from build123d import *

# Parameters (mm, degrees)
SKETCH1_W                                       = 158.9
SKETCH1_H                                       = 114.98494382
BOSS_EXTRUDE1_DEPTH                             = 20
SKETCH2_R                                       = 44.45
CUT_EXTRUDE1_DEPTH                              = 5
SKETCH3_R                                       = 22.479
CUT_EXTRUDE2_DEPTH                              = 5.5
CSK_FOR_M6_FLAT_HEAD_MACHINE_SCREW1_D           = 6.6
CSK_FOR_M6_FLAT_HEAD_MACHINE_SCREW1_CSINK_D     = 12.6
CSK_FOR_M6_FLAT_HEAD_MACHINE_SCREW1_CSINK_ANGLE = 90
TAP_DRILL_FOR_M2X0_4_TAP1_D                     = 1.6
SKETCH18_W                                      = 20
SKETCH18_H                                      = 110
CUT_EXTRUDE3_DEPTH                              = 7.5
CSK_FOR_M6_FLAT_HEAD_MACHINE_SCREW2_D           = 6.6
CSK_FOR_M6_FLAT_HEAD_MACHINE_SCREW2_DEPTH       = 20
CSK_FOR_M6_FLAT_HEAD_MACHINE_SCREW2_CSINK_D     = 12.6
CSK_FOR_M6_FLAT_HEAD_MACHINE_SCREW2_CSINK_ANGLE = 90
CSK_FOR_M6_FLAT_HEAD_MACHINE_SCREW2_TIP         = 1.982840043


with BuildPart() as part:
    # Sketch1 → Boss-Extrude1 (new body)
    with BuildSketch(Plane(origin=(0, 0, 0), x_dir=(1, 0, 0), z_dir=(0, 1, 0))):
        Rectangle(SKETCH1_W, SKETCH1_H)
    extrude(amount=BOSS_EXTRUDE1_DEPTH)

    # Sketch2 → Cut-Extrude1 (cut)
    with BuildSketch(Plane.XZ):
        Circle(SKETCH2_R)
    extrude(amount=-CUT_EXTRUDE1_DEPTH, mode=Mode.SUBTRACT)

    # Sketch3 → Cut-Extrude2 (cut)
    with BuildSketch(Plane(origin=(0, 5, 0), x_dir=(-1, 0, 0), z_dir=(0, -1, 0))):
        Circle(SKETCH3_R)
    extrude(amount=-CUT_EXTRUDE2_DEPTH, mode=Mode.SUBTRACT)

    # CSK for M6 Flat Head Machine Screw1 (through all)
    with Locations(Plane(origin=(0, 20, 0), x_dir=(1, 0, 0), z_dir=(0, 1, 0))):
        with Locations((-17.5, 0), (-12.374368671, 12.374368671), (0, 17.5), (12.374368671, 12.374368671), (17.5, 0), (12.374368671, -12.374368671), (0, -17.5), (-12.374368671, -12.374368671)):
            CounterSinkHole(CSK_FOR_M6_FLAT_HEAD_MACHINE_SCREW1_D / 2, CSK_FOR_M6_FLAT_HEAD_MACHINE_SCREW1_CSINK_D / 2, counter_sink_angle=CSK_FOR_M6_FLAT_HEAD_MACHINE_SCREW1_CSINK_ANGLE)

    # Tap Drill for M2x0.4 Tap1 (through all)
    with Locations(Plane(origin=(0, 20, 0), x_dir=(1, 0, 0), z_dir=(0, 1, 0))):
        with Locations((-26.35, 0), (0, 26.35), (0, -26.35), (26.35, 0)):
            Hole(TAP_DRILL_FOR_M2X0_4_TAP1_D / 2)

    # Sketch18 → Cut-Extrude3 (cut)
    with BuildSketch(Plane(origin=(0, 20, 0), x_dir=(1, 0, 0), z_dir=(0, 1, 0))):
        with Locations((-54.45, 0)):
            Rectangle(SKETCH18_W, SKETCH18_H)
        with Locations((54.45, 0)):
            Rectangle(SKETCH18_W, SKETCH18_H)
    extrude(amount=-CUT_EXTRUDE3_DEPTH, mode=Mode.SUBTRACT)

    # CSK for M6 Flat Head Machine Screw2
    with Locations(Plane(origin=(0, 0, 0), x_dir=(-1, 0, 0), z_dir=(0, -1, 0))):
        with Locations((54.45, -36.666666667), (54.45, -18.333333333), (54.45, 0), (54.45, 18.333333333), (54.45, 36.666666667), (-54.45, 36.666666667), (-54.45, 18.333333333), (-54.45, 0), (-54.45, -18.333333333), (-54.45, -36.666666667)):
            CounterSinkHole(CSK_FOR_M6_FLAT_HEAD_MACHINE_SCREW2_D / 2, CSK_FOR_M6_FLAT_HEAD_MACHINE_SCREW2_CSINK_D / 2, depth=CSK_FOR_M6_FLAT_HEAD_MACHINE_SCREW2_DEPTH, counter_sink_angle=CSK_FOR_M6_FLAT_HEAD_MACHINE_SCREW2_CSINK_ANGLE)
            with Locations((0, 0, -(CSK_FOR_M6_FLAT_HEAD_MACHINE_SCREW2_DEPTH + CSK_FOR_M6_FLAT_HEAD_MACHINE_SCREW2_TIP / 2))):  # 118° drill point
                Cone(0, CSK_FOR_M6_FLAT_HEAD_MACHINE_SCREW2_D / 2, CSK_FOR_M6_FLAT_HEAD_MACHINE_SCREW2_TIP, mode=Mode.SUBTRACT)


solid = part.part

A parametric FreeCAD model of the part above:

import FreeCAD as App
import Part
import Sketcher
from FreeCAD import Vector
Q = App.Units.Quantity


def add_polygon(sketch, points):
    """Adds a closed chain of lines whose ends are joined by coincident constraints."""
    first, n = sketch.GeometryCount, len(points)
    for a, b in zip(points, points[1:] + points[:1]):
        sketch.addGeometry(Part.LineSegment(App.Vector(*a, 0), App.Vector(*b, 0)), False)
    for i in range(n):
        sketch.addConstraint(Sketcher.Constraint("Coincident", first + i, 2, first + (i + 1) % n, 1))

doc = App.newDocument("Part")
body = doc.addObject("PartDesign::Body", "Body")

# Sketch on XZ plane
sketch1 = body.newObject("Sketcher::SketchObject", "Sketch")
sketch1.AttachmentSupport = (doc.getObject("XZ_Plane"), [""])
sketch1.MapMode = "FlatFace"
add_polygon(sketch1, [(-79, -57), (-79, 57), (79, 57), (79, -57)])  # lines 0-3
sketch1.addConstraint([
    Sketcher.Constraint("Vertical", 0),
    Sketcher.Constraint("Horizontal", 1),
    Sketcher.Constraint("Vertical", 2),
    Sketcher.Constraint("Horizontal", 3),
    Sketcher.Constraint("Symmetric", 0, 2, 2, 2, -1, 1),
    Sketcher.Constraint("DistanceX", 1, 1, 1, 2, Q("158.9 mm")),
    Sketcher.Constraint("DistanceY", 0, 1, 0, 2, Q("114.984944 mm")),
])
pad1 = body.newObject("PartDesign::Pad", "Pad")
pad1.Profile = sketch1
pad1.Length = 20
pad1.Reversed = True

# Sketch on XZ plane
sketch2 = body.newObject("Sketcher::SketchObject", "Sketch001")
sketch2.AttachmentSupport = (doc.getObject("XZ_Plane"), [""])
sketch2.MapMode = "FlatFace"
sketch2.addGeometry(Part.Circle(Vector(0, 0, 0), Vector(0, 0, 1), 44), False)
sketch2.addConstraint([
    Sketcher.Constraint("Coincident", 0, 3, -1, 1),
    Sketcher.Constraint("Diameter", 0, Q("88.9 mm")),
])
pocket1 = body.newObject("PartDesign::Pocket", "Pocket")
pocket1.Profile = sketch2
pocket1.Length = 5

# Sketch on XZ plane
sketch3 = body.newObject("Sketcher::SketchObject", "Sketch002")
sketch3.AttachmentSupport = (doc.getObject("XZ_Plane"), [""])
sketch3.MapMode = "FlatFace"
sketch3.AttachmentOffset = App.Placement(Vector(0, 0, -5), App.Rotation())
sketch3.addGeometry(Part.Circle(Vector(0, 0, 0), Vector(0, 0, 1), 22), False)
sketch3.addConstraint([
    Sketcher.Constraint("Coincident", 0, 3, -1, 1),
    Sketcher.Constraint("Diameter", 0, Q("44.958 mm")),
])
pocket2 = body.newObject("PartDesign::Pocket", "Pocket001")
pocket2.Profile = sketch3
pocket2.Length = 5.5

# Sketch on XZ plane
sketch4 = body.newObject("Sketcher::SketchObject", "Sketch003")
sketch4.AttachmentSupport = (doc.getObject("XZ_Plane"), [""])
sketch4.MapMode = "FlatFace"
sketch4.AttachmentOffset = App.Placement(Vector(0, 0, -20), App.Rotation())
sketch4.addGeometry([
    Part.Circle(Vector(-17.5, 0, 0), Vector(0, 0, 1), 3.3),  # 0
    Part.Circle(Vector(-12.4, -12.4, 0), Vector(0, 0, 1), 3.3),  # 1
    Part.Circle(Vector(0, -17.5, 0), Vector(0, 0, 1), 3.3),  # 2
    Part.Circle(Vector(12.4, -12.4, 0), Vector(0, 0, 1), 3.3),  # 3
    Part.Circle(Vector(17.5, 0, 0), Vector(0, 0, 1), 3.3),  # 4
    Part.Circle(Vector(12.4, 12.4, 0), Vector(0, 0, 1), 3.3),  # 5
    Part.Circle(Vector(0, 17.5, 0), Vector(0, 0, 1), 3.3),  # 6
    Part.Circle(Vector(-12.4, 12.4, 0), Vector(0, 0, 1), 3.3),  # 7
], False)
sketch4.addConstraint([
    Sketcher.Constraint("Equal", 0, 1),
    Sketcher.Constraint("Equal", 1, 2),
    Sketcher.Constraint("Equal", 2, 3),
    Sketcher.Constraint("Equal", 3, 4),
    Sketcher.Constraint("Equal", 4, 5),
    Sketcher.Constraint("Equal", 5, 6),
    Sketcher.Constraint("Equal", 6, 7),
    Sketcher.Constraint("Symmetric", 0, 3, 4, 3, -1, 1),
    Sketcher.Constraint("Symmetric", 1, 3, 5, 3, -1, 1),
    Sketcher.Constraint("Symmetric", 2, 3, 6, 3, -1, 1),
    Sketcher.Constraint("Symmetric", 3, 3, 7, 3, -1, 1),
    Sketcher.Constraint("Symmetric", 1, 3, 3, 3, -2),
    Sketcher.Constraint("PointOnObject", 0, 3, -1),
    Sketcher.Constraint("PointOnObject", 2, 3, -2),
    Sketcher.Constraint("Diameter", 0, Q("6.6 mm")),
    Sketcher.Constraint("DistanceX", 0, 3, 4, 3, Q("35 mm")),
    Sketcher.Constraint("DistanceY", 2, 3, -1, 1, Q("17.5 mm")),
    Sketcher.Constraint("DistanceX", 1, 3, -1, 1, Q("12.374369 mm")),
    Sketcher.Constraint("DistanceY", 1, 3, -1, 1, Q("12.374369 mm")),
])
doc.recompute()
hole = body.newObject("PartDesign::Hole", "Hole")
hole.Profile = sketch4
hole.ThreadType = "None"
hole.Diameter = 6.6
hole.DepthType = "ThroughAll"
hole.HoleCutType = "Countersink"
hole.HoleCutDiameter = 12.6
hole.HoleCutCountersinkAngle = 90
hole.Reversed = True

# Sketch on XZ plane
sketch5 = body.newObject("Sketcher::SketchObject", "Sketch004")
sketch5.AttachmentSupport = (doc.getObject("XZ_Plane"), [""])
sketch5.MapMode = "FlatFace"
sketch5.AttachmentOffset = App.Placement(Vector(0, 0, -20), App.Rotation())
sketch5.addGeometry([
    Part.Circle(Vector(-26.4, 0, 0), Vector(0, 0, 1), 0.8),
    Part.Circle(Vector(0, -26.4, 0), Vector(0, 0, 1), 0.8),
    Part.Circle(Vector(0, 26.4, 0), Vector(0, 0, 1), 0.8),
    Part.Circle(Vector(26.4, 0, 0), Vector(0, 0, 1), 0.8),
], False)
sketch5.addConstraint([
    Sketcher.Constraint("Equal", 0, 1),
    Sketcher.Constraint("Equal", 1, 2),
    Sketcher.Constraint("Equal", 2, 3),
    Sketcher.Constraint("Symmetric", 1, 3, 2, 3, -1, 1),
    Sketcher.Constraint("Symmetric", 0, 3, 3, 3, -1, 1),
    Sketcher.Constraint("PointOnObject", 0, 3, -1),
    Sketcher.Constraint("PointOnObject", 1, 3, -2),
    Sketcher.Constraint("Diameter", 0, Q("1.6 mm")),
    Sketcher.Constraint("DistanceY", 1, 3, 2, 3, Q("52.7 mm")),
    Sketcher.Constraint("DistanceX", 0, 3, 3, 3, Q("52.7 mm")),
])
doc.recompute()
hole2 = body.newObject("PartDesign::Hole", "Hole001")
hole2.Profile = sketch5
hole2.ThreadType = "None"
hole2.Diameter = 1.6
hole2.DepthType = "ThroughAll"
hole2.Reversed = True

# Sketch on XZ plane
sketch6 = body.newObject("Sketcher::SketchObject", "Sketch005")
sketch6.AttachmentSupport = (doc.getObject("XZ_Plane"), [""])
sketch6.MapMode = "FlatFace"
sketch6.AttachmentOffset = App.Placement(Vector(0, 0, -20), App.Rotation())
add_polygon(sketch6, [(-64, -55), (-64, 55), (-44, 55), (-44, -55)])  # lines 0-3
add_polygon(sketch6, [(44, -55), (44, 55), (64, 55), (64, -55)])  # lines 4-7
sketch6.addConstraint([
    Sketcher.Constraint("Vertical", 0),
    Sketcher.Constraint("Horizontal", 1),
    Sketcher.Constraint("Vertical", 2),
    Sketcher.Constraint("Horizontal", 3),
    Sketcher.Constraint("Vertical", 4),
    Sketcher.Constraint("Horizontal", 5),
    Sketcher.Constraint("Vertical", 6),
    Sketcher.Constraint("Horizontal", 7),
    Sketcher.Constraint("Symmetric", 2, 2, 4, 2, -1, 1),
    Sketcher.Constraint("Symmetric", 0, 2, 6, 2, -1, 1),
    Sketcher.Constraint("Horizontal", 1, 2, 4, 2),
    Sketcher.Constraint("DistanceX", 1, 1, 1, 2, Q("20 mm")),
    Sketcher.Constraint("DistanceY", 0, 1, 0, 2, Q("110 mm")),
    Sketcher.Constraint("DistanceX", 1, 2, 4, 2, Q("88.9 mm")),
])
pocket3 = body.newObject("PartDesign::Pocket", "Pocket002")
pocket3.Profile = sketch6
pocket3.Length = 7.5
pocket3.Reversed = True

# Sketch on XZ plane
sketch7 = body.newObject("Sketcher::SketchObject", "Sketch006")
sketch7.AttachmentSupport = (doc.getObject("XZ_Plane"), [""])
sketch7.MapMode = "FlatFace"
sketch7.addGeometry([
    Part.Circle(Vector(-54.5, 36.7, 0), Vector(0, 0, 1), 3.3),  # 0
    Part.Circle(Vector(-54.5, 18.3, 0), Vector(0, 0, 1), 3.3),  # 1
    Part.Circle(Vector(-54.5, 0, 0), Vector(0, 0, 1), 3.3),  # 2
    Part.Circle(Vector(-54.5, -18.3, 0), Vector(0, 0, 1), 3.3),  # 3
    Part.Circle(Vector(-54.5, -36.7, 0), Vector(0, 0, 1), 3.3),  # 4
    Part.Circle(Vector(54.5, -36.7, 0), Vector(0, 0, 1), 3.3),  # 5
    Part.Circle(Vector(54.5, -18.3, 0), Vector(0, 0, 1), 3.3),  # 6
    Part.Circle(Vector(54.5, 0, 0), Vector(0, 0, 1), 3.3),  # 7
    Part.Circle(Vector(54.5, 18.3, 0), Vector(0, 0, 1), 3.3),  # 8
    Part.Circle(Vector(54.5, 36.7, 0), Vector(0, 0, 1), 3.3),  # 9
], False)
sketch7.addConstraint([
    Sketcher.Constraint("Equal", 0, 1),
    Sketcher.Constraint("Equal", 1, 2),
    Sketcher.Constraint("Equal", 2, 3),
    Sketcher.Constraint("Equal", 3, 4),
    Sketcher.Constraint("Equal", 4, 5),
    Sketcher.Constraint("Equal", 5, 6),
    Sketcher.Constraint("Equal", 6, 7),
    Sketcher.Constraint("Equal", 7, 8),
    Sketcher.Constraint("Equal", 8, 9),
    Sketcher.Constraint("Symmetric", 0, 3, 5, 3, -1, 1),
    Sketcher.Constraint("Symmetric", 1, 3, 6, 3, -1, 1),
    Sketcher.Constraint("Symmetric", 2, 3, 7, 3, -1, 1),
    Sketcher.Constraint("Symmetric", 3, 3, 8, 3, -1, 1),
    Sketcher.Constraint("Symmetric", 4, 3, 9, 3, -1, 1),
    Sketcher.Constraint("Symmetric", 4, 3, 5, 3, -2),
    Sketcher.Constraint("Symmetric", 3, 3, 6, 3, -2),
    Sketcher.Constraint("PointOnObject", 2, 3, -1),
    Sketcher.Constraint("Vertical", 0, 3, 1, 3),
    Sketcher.Constraint("Vertical", 1, 3, 2, 3),
    Sketcher.Constraint("Diameter", 0, Q("6.6 mm")),
    Sketcher.Constraint("DistanceY", 3, 3, 0, 3, Q("55 mm")),
    Sketcher.Constraint("DistanceX", 4, 3, 5, 3, Q("108.9 mm")),
    Sketcher.Constraint("DistanceY", -1, 1, 0, 3, Q("36.666667 mm")),
])
doc.recompute()
hole3 = body.newObject("PartDesign::Hole", "Hole002")
hole3.Profile = sketch7
hole3.ThreadType = "None"
hole3.Diameter = 6.6
hole3.DepthType = "Dimension"
hole3.Depth = 20
hole3.DrillPoint = "Angled"
hole3.DrillPointAngle = 118
hole3.HoleCutType = "Countersink"
hole3.HoleCutDiameter = 12.6
hole3.HoleCutCountersinkAngle = 90

doc.recompute()
